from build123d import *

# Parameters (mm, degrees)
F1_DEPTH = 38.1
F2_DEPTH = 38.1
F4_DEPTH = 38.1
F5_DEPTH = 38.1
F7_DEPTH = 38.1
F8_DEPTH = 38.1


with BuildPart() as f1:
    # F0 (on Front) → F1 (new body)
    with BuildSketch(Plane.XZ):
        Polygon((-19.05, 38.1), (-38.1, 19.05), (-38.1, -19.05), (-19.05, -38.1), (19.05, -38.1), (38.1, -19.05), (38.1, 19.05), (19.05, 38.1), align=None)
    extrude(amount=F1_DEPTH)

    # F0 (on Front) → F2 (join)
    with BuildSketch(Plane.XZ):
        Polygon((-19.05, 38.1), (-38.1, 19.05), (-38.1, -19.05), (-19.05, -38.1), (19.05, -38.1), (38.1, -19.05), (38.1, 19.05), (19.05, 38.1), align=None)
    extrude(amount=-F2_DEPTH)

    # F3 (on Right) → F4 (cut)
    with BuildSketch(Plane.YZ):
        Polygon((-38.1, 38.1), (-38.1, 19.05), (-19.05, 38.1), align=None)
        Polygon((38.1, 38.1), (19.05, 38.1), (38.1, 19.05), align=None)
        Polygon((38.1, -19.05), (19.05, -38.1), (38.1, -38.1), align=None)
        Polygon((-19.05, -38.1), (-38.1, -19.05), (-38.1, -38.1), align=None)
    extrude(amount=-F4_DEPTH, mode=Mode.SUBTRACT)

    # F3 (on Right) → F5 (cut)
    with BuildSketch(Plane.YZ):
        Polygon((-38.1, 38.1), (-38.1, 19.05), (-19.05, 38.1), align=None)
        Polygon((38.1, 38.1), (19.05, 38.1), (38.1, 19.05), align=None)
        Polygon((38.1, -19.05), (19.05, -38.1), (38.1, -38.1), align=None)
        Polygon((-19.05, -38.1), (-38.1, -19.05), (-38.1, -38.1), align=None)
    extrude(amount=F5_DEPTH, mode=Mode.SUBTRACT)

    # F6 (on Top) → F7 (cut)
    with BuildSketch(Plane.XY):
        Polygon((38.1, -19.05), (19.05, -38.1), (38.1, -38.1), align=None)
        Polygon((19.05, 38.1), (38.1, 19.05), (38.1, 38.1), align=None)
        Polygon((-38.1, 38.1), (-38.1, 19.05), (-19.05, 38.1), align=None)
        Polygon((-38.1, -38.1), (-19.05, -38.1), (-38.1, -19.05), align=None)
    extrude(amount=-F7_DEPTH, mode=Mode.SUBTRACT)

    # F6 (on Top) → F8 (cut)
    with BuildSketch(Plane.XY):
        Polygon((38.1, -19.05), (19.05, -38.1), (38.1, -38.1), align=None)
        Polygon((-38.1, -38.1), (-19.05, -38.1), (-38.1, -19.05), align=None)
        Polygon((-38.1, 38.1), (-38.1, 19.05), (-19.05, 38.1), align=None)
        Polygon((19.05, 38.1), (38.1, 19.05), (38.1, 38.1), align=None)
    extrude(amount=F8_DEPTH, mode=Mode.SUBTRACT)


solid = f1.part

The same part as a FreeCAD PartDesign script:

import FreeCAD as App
import Part
import Sketcher
from FreeCAD import Vector
Q = App.Units.Quantity

doc = App.newDocument("Part")
body = doc.addObject("PartDesign::Body", "Body")

sketch1 = body.newObject("Sketcher::SketchObject", "Sketch")
sketch1.AttachmentSupport = (doc.getObject("XZ_Plane"), [""])
sketch1.MapMode = "FlatFace"
sketch1.addGeometry(Part.LineSegment(Vector(-19, 38, 0), Vector(-38, 19, 0)), False)
sketch1.addGeometry(Part.LineSegment(Vector(-38, 19, 0), Vector(-38, -19, 0)), False)
sketch1.addGeometry(Part.LineSegment(Vector(-38, -19, 0), Vector(-19, -38, 0)), False)
sketch1.addGeometry(Part.LineSegment(Vector(-19, -38, 0), Vector(19, -38, 0)), False)
sketch1.addGeometry(Part.LineSegment(Vector(19, -38, 0), Vector(38, -19, 0)), False)
sketch1.addGeometry(Part.LineSegment(Vector(38, -19, 0), Vector(38, 19, 0)), False)
sketch1.addGeometry(Part.LineSegment(Vector(38, 19, 0), Vector(19, 38, 0)), False)
sketch1.addGeometry(Part.LineSegment(Vector(19, 38, 0), Vector(-19, 38, 0)), False)
sketch1.addConstraint(Sketcher.Constraint("Coincident", 0, 2, 1, 1))
sketch1.addConstraint(Sketcher.Constraint("Coincident", 1, 2, 2, 1))
sketch1.addConstraint(Sketcher.Constraint("Coincident", 2, 2, 3, 1))
sketch1.addConstraint(Sketcher.Constraint("Coincident", 3, 2, 4, 1))
sketch1.addConstraint(Sketcher.Constraint("Coincident", 4, 2, 5, 1))
sketch1.addConstraint(Sketcher.Constraint("Coincident", 5, 2, 6, 1))
sketch1.addConstraint(Sketcher.Constraint("Coincident", 6, 2, 7, 1))
sketch1.addConstraint(Sketcher.Constraint("Coincident", 7, 2, 0, 1))
sketch1.addConstraint(Sketcher.Constraint("Vertical", 1))
sketch1.addConstraint(Sketcher.Constraint("Horizontal", 3))
sketch1.addConstraint(Sketcher.Constraint("Vertical", 5))
sketch1.addConstraint(Sketcher.Constraint("Horizontal", 7))
sketch1.addConstraint(Sketcher.Constraint("Symmetric", 0, 2, 4, 2, -1, 1))
sketch1.addConstraint(Sketcher.Constraint("Symmetric", 2, 2, 6, 2, -1, 1))
sketch1.addConstraint(Sketcher.Constraint("Perpendicular", 0, 2))
sketch1.addConstraint(Sketcher.Constraint("Perpendicular", 2, 4))
sketch1.addConstraint(Sketcher.Constraint("Perpendicular", 4, 6))
sketch1.addConstraint(Sketcher.Constraint("Horizontal", 1, 2, 4, 2))
sketch1.addConstraint(Sketcher.Constraint("Vertical", 3, 2, 6, 2))
sketch1.addConstraint(Sketcher.Constraint("Equal", 7, 1))
sketch1.addConstraint(Sketcher.Constraint("DistanceX", 3, 1, 3, 2, Q("1.5 in")))
sketch1.addConstraint(Sketcher.Constraint("DistanceX", 1, 2, 4, 2, Q("3 in")))
pad1 = body.newObject("PartDesign::Pad", "Pad")
pad1.Profile = sketch1
pad1.Length = Q("1.5 in")

sketch2 = body.newObject("Sketcher::SketchObject", "Sketch001")
sketch2.AttachmentSupport = (doc.getObject("XZ_Plane"), [""])
sketch2.MapMode = "FlatFace"
sketch2.addGeometry(Part.LineSegment(Vector(-19, 38, 0), Vector(-38, 19, 0)), False)
sketch2.addGeometry(Part.LineSegment(Vector(-38, 19, 0), Vector(-38, -19, 0)), False)
sketch2.addGeometry(Part.LineSegment(Vector(-38, -19, 0), Vector(-19, -38, 0)), False)
sketch2.addGeometry(Part.LineSegment(Vector(-19, -38, 0), Vector(19, -38, 0)), False)
sketch2.addGeometry(Part.LineSegment(Vector(19, -38, 0), Vector(38, -19, 0)), False)
sketch2.addGeometry(Part.LineSegment(Vector(38, -19, 0), Vector(38, 19, 0)), False)
sketch2.addGeometry(Part.LineSegment(Vector(38, 19, 0), Vector(19, 38, 0)), False)
sketch2.addGeometry(Part.LineSegment(Vector(19, 38, 0), Vector(-19, 38, 0)), False)
sketch2.addConstraint(Sketcher.Constraint("Coincident", 0, 2, 1, 1))
sketch2.addConstraint(Sketcher.Constraint("Coincident", 1, 2, 2, 1))
sketch2.addConstraint(Sketcher.Constraint("Coincident", 2, 2, 3, 1))
sketch2.addConstraint(Sketcher.Constraint("Coincident", 3, 2, 4, 1))
sketch2.addConstraint(Sketcher.Constraint("Coincident", 4, 2, 5, 1))
sketch2.addConstraint(Sketcher.Constraint("Coincident", 5, 2, 6, 1))
sketch2.addConstraint(Sketcher.Constraint("Coincident", 6, 2, 7, 1))
sketch2.addConstraint(Sketcher.Constraint("Coincident", 7, 2, 0, 1))
sketch2.addConstraint(Sketcher.Constraint("Vertical", 1))
sketch2.addConstraint(Sketcher.Constraint("Horizontal", 3))
sketch2.addConstraint(Sketcher.Constraint("Vertical", 5))
sketch2.addConstraint(Sketcher.Constraint("Horizontal", 7))
sketch2.addConstraint(Sketcher.Constraint("Symmetric", 0, 2, 4, 2, -1, 1))
sketch2.addConstraint(Sketcher.Constraint("Symmetric", 2, 2, 6, 2, -1, 1))
sketch2.addConstraint(Sketcher.Constraint("Perpendicular", 0, 2))
sketch2.addConstraint(Sketcher.Constraint("Perpendicular", 2, 4))
sketch2.addConstraint(Sketcher.Constraint("Perpendicular", 4, 6))
sketch2.addConstraint(Sketcher.Constraint("Horizontal", 1, 2, 4, 2))
sketch2.addConstraint(Sketcher.Constraint("Vertical", 3, 2, 6, 2))
sketch2.addConstraint(Sketcher.Constraint("Equal", 7, 1))
sketch2.addConstraint(Sketcher.Constraint("DistanceX", 3, 1, 3, 2, Q("1.5 in")))
sketch2.addConstraint(Sketcher.Constraint("DistanceX", 1, 2, 4, 2, Q("3 in")))
pad2 = body.newObject("PartDesign::Pad", "Pad001")
pad2.Profile = sketch2
pad2.Length = Q("1.5 in")
pad2.Reversed = True

sketch3 = body.newObject("Sketcher::SketchObject", "Sketch002")
sketch3.AttachmentSupport = (doc.getObject("YZ_Plane"), [""])
sketch3.MapMode = "FlatFace"
sketch3.addGeometry(Part.LineSegment(Vector(-38, 38, 0), Vector(-38, 19, 0)), False)
sketch3.addGeometry(Part.LineSegment(Vector(-38, 19, 0), Vector(-19, 38, 0)), False)
sketch3.addGeometry(Part.LineSegment(Vector(-19, 38, 0), Vector(-38, 38, 0)), False)
sketch3.addGeometry(Part.LineSegment(Vector(38, 38, 0), Vector(19, 38, 0)), False)
sketch3.addGeometry(Part.LineSegment(Vector(19, 38, 0), Vector(38, 19, 0)), False)
sketch3.addGeometry(Part.LineSegment(Vector(38, 19, 0), Vector(38, 38, 0)), False)
sketch3.addGeometry(Part.LineSegment(Vector(38, -19, 0), Vector(19, -38, 0)), False)
sketch3.addGeometry(Part.LineSegment(Vector(19, -38, 0), Vector(38, -38, 0)), False)
sketch3.addGeometry(Part.LineSegment(Vector(38, -38, 0), Vector(38, -19, 0)), False)
sketch3.addGeometry(Part.LineSegment(Vector(-19, -38, 0), Vector(-38, -19, 0)), False)
sketch3.addGeometry(Part.LineSegment(Vector(-38, -19, 0), Vector(-38, -38, 0)), False)
sketch3.addGeometry(Part.LineSegment(Vector(-38, -38, 0), Vector(-19, -38, 0)), False)
sketch3.addConstraint(Sketcher.Constraint("Coincident", 0, 2, 1, 1))
sketch3.addConstraint(Sketcher.Constraint("Coincident", 1, 2, 2, 1))
sketch3.addConstraint(Sketcher.Constraint("Coincident", 2, 2, 0, 1))
sketch3.addConstraint(Sketcher.Constraint("Coincident", 3, 2, 4, 1))
sketch3.addConstraint(Sketcher.Constraint("Coincident", 4, 2, 5, 1))
sketch3.addConstraint(Sketcher.Constraint("Coincident", 5, 2, 3, 1))
sketch3.addConstraint(Sketcher.Constraint("Coincident", 6, 2, 7, 1))
sketch3.addConstraint(Sketcher.Constraint("Coincident", 7, 2, 8, 1))
sketch3.addConstraint(Sketcher.Constraint("Coincident", 8, 2, 6, 1))
sketch3.addConstraint(Sketcher.Constraint("Coincident", 9, 2, 10, 1))
sketch3.addConstraint(Sketcher.Constraint("Coincident", 10, 2, 11, 1))
sketch3.addConstraint(Sketcher.Constraint("Coincident", 11, 2, 9, 1))
sketch3.addConstraint(Sketcher.Constraint("Vertical", 0))
sketch3.addConstraint(Sketcher.Constraint("Horizontal", 2))
sketch3.addConstraint(Sketcher.Constraint("Horizontal", 3))
sketch3.addConstraint(Sketcher.Constraint("Vertical", 5))
sketch3.addConstraint(Sketcher.Constraint("Horizontal", 7))
sketch3.addConstraint(Sketcher.Constraint("Vertical", 8))
sketch3.addConstraint(Sketcher.Constraint("Vertical", 10))
sketch3.addConstraint(Sketcher.Constraint("Horizontal", 11))
sketch3.addConstraint(Sketcher.Constraint("Symmetric", 1, 2, 6, 2, -1, 1))
sketch3.addConstraint(Sketcher.Constraint("Symmetric", 0, 2, 8, 2, -1, 1))
sketch3.addConstraint(Sketcher.Constraint("Symmetric", 4, 2, 9, 2, -1, 1))
sketch3.addConstraint(Sketcher.Constraint("Symmetric", 3, 2, 11, 2, -1, 1))
sketch3.addConstraint(Sketcher.Constraint("Symmetric", 1, 2, 3, 2, -2))
sketch3.addConstraint(Sketcher.Constraint("Symmetric", 0, 2, 4, 2, -2))
sketch3.addConstraint(Sketcher.Constraint("Perpendicular", 1, 4))
sketch3.addConstraint(Sketcher.Constraint("DistanceX", 0, 2, 4, 2, Q("3 in")))
sketch3.addConstraint(Sketcher.Constraint("DistanceY", 6, 2, 3, 2, Q("3 in")))
sketch3.addConstraint(Sketcher.Constraint("DistanceX", 2, 2, 2, 1, Q("0.75 in")))
pocket1 = body.newObject("PartDesign::Pocket", "Pocket")
pocket1.Profile = sketch3
pocket1.Length = Q("1.5 in")

sketch4 = body.newObject("Sketcher::SketchObject", "Sketch003")
sketch4.AttachmentSupport = (doc.getObject("YZ_Plane"), [""])
sketch4.MapMode = "FlatFace"
sketch4.addGeometry(Part.LineSegment(Vector(-38, 38, 0), Vector(-38, 19, 0)), False)
sketch4.addGeometry(Part.LineSegment(Vector(-38, 19, 0), Vector(-19, 38, 0)), False)
sketch4.addGeometry(Part.LineSegment(Vector(-19, 38, 0), Vector(-38, 38, 0)), False)
sketch4.addGeometry(Part.LineSegment(Vector(38, 38, 0), Vector(19, 38, 0)), False)
sketch4.addGeometry(Part.LineSegment(Vector(19, 38, 0), Vector(38, 19, 0)), False)
sketch4.addGeometry(Part.LineSegment(Vector(38, 19, 0), Vector(38, 38, 0)), False)
sketch4.addGeometry(Part.LineSegment(Vector(38, -19, 0), Vector(19, -38, 0)), False)
sketch4.addGeometry(Part.LineSegment(Vector(19, -38, 0), Vector(38, -38, 0)), False)
sketch4.addGeometry(Part.LineSegment(Vector(38, -38, 0), Vector(38, -19, 0)), False)
sketch4.addGeometry(Part.LineSegment(Vector(-19, -38, 0), Vector(-38, -19, 0)), False)
sketch4.addGeometry(Part.LineSegment(Vector(-38, -19, 0), Vector(-38, -38, 0)), False)
sketch4.addGeometry(Part.LineSegment(Vector(-38, -38, 0), Vector(-19, -38, 0)), False)
sketch4.addConstraint(Sketcher.Constraint("Coincident", 0, 2, 1, 1))
sketch4.addConstraint(Sketcher.Constraint("Coincident", 1, 2, 2, 1))
sketch4.addConstraint(Sketcher.Constraint("Coincident", 2, 2, 0, 1))
sketch4.addConstraint(Sketcher.Constraint("Coincident", 3, 2, 4, 1))
sketch4.addConstraint(Sketcher.Constraint("Coincident", 4, 2, 5, 1))
sketch4.addConstraint(Sketcher.Constraint("Coincident", 5, 2, 3, 1))
sketch4.addConstraint(Sketcher.Constraint("Coincident", 6, 2, 7, 1))
sketch4.addConstraint(Sketcher.Constraint("Coincident", 7, 2, 8, 1))
sketch4.addConstraint(Sketcher.Constraint("Coincident", 8, 2, 6, 1))
sketch4.addConstraint(Sketcher.Constraint("Coincident", 9, 2, 10, 1))
sketch4.addConstraint(Sketcher.Constraint("Coincident", 10, 2, 11, 1))
sketch4.addConstraint(Sketcher.Constraint("Coincident", 11, 2, 9, 1))
sketch4.addConstraint(Sketcher.Constraint("Vertical", 0))
sketch4.addConstraint(Sketcher.Constraint("Horizontal", 2))
sketch4.addConstraint(Sketcher.Constraint("Horizontal", 3))
sketch4.addConstraint(Sketcher.Constraint("Vertical", 5))
sketch4.addConstraint(Sketcher.Constraint("Horizontal", 7))
sketch4.addConstraint(Sketcher.Constraint("Vertical", 8))
sketch4.addConstraint(Sketcher.Constraint("Vertical", 10))
sketch4.addConstraint(Sketcher.Constraint("Horizontal", 11))
sketch4.addConstraint(Sketcher.Constraint("Symmetric", 1, 2, 6, 2, -1, 1))
sketch4.addConstraint(Sketcher.Constraint("Symmetric", 0, 2, 8, 2, -1, 1))
sketch4.addConstraint(Sketcher.Constraint("Symmetric", 4, 2, 9, 2, -1, 1))
sketch4.addConstraint(Sketcher.Constraint("Symmetric", 3, 2, 11, 2, -1, 1))
sketch4.addConstraint(Sketcher.Constraint("Symmetric", 1, 2, 3, 2, -2))
sketch4.addConstraint(Sketcher.Constraint("Symmetric", 0, 2, 4, 2, -2))
sketch4.addConstraint(Sketcher.Constraint("Perpendicular", 1, 4))
sketch4.addConstraint(Sketcher.Constraint("DistanceX", 0, 2, 4, 2, Q("3 in")))
sketch4.addConstraint(Sketcher.Constraint("DistanceY", 6, 2, 3, 2, Q("3 in")))
sketch4.addConstraint(Sketcher.Constraint("DistanceX", 2, 2, 2, 1, Q("0.75 in")))
pocket2 = body.newObject("PartDesign::Pocket", "Pocket001")
pocket2.Profile = sketch4
pocket2.Length = Q("1.5 in")
pocket2.Reversed = True

sketch5 = body.newObject("Sketcher::SketchObject", "Sketch004")
sketch5.AttachmentSupport = (doc.getObject("XY_Plane"), [""])
sketch5.MapMode = "FlatFace"
sketch5.addGeometry(Part.LineSegment(Vector(38, -19, 0), Vector(19, -38, 0)), False)
sketch5.addGeometry(Part.LineSegment(Vector(19, -38, 0), Vector(38, -38, 0)), False)
sketch5.addGeometry(Part.LineSegment(Vector(38, -38, 0), Vector(38, -19, 0)), False)
sketch5.addGeometry(Part.LineSegment(Vector(19, 38, 0), Vector(38, 19, 0)), False)
sketch5.addGeometry(Part.LineSegment(Vector(38, 19, 0), Vector(38, 38, 0)), False)
sketch5.addGeometry(Part.LineSegment(Vector(38, 38, 0), Vector(19, 38, 0)), False)
sketch5.addGeometry(Part.LineSegment(Vector(-38, 38, 0), Vector(-38, 19, 0)), False)
sketch5.addGeometry(Part.LineSegment(Vector(-38, 19, 0), Vector(-19, 38, 0)), False)
sketch5.addGeometry(Part.LineSegment(Vector(-19, 38, 0), Vector(-38, 38, 0)), False)
sketch5.addGeometry(Part.LineSegment(Vector(-38, -38, 0), Vector(-19, -38, 0)), False)
sketch5.addGeometry(Part.LineSegment(Vector(-19, -38, 0), Vector(-38, -19, 0)), False)
sketch5.addGeometry(Part.LineSegment(Vector(-38, -19, 0), Vector(-38, -38, 0)), False)
sketch5.addConstraint(Sketcher.Constraint("Coincident", 0, 2, 1, 1))
sketch5.addConstraint(Sketcher.Constraint("Coincident", 1, 2, 2, 1))
sketch5.addConstraint(Sketcher.Constraint("Coincident", 2, 2, 0, 1))
sketch5.addConstraint(Sketcher.Constraint("Coincident", 3, 2, 4, 1))
sketch5.addConstraint(Sketcher.Constraint("Coincident", 4, 2, 5, 1))
sketch5.addConstraint(Sketcher.Constraint("Coincident", 5, 2, 3, 1))
sketch5.addConstraint(Sketcher.Constraint("Coincident", 6, 2, 7, 1))
sketch5.addConstraint(Sketcher.Constraint("Coincident", 7, 2, 8, 1))
sketch5.addConstraint(Sketcher.Constraint("Coincident", 8, 2, 6, 1))
sketch5.addConstraint(Sketcher.Constraint("Coincident", 9, 2, 10, 1))
sketch5.addConstraint(Sketcher.Constraint("Coincident", 10, 2, 11, 1))
sketch5.addConstraint(Sketcher.Constraint("Coincident", 11, 2, 9, 1))
sketch5.addConstraint(Sketcher.Constraint("Horizontal", 1))
sketch5.addConstraint(Sketcher.Constraint("Vertical", 2))
sketch5.addConstraint(Sketcher.Constraint("Vertical", 4))
sketch5.addConstraint(Sketcher.Constraint("Horizontal", 5))
sketch5.addConstraint(Sketcher.Constraint("Vertical", 6))
sketch5.addConstraint(Sketcher.Constraint("Horizontal", 8))
sketch5.addConstraint(Sketcher.Constraint("Horizontal", 9))
sketch5.addConstraint(Sketcher.Constraint("Vertical", 11))
sketch5.addConstraint(Sketcher.Constraint("Symmetric", 2, 2, 6, 2, -1, 1))
sketch5.addConstraint(Sketcher.Constraint("Symmetric", 0, 2, 7, 2, -1, 1))
sketch5.addConstraint(Sketcher.Constraint("Symmetric", 5, 2, 9, 2, -1, 1))
sketch5.addConstraint(Sketcher.Constraint("Symmetric", 3, 2, 10, 2, -1, 1))
sketch5.addConstraint(Sketcher.Constraint("Symmetric", 3, 2, 6, 2, -2))
sketch5.addConstraint(Sketcher.Constraint("Symmetric", 5, 2, 7, 2, -2))
sketch5.addConstraint(Sketcher.Constraint("Perpendicular", 0, 3))
sketch5.addConstraint(Sketcher.Constraint("DistanceY", 1, 2, 4, 2, Q("3 in")))
sketch5.addConstraint(Sketcher.Constraint("DistanceX", 6, 2, 3, 2, Q("3 in")))
sketch5.addConstraint(Sketcher.Constraint("DistanceX", 1, 1, 1, 2, Q("0.75 in")))
pocket3 = body.newObject("PartDesign::Pocket", "Pocket002")
pocket3.Profile = sketch5
pocket3.Length = Q("1.5 in")

sketch6 = body.newObject("Sketcher::SketchObject", "Sketch005")
sketch6.AttachmentSupport = (doc.getObject("XY_Plane"), [""])
sketch6.MapMode = "FlatFace"
sketch6.addGeometry(Part.LineSegment(Vector(38, -19, 0), Vector(19, -38, 0)), False)
sketch6.addGeometry(Part.LineSegment(Vector(19, -38, 0), Vector(38, -38, 0)), False)
sketch6.addGeometry(Part.LineSegment(Vector(38, -38, 0), Vector(38, -19, 0)), False)
sketch6.addGeometry(Part.LineSegment(Vector(-38, -38, 0), Vector(-19, -38, 0)), False)
sketch6.addGeometry(Part.LineSegment(Vector(-19, -38, 0), Vector(-38, -19, 0)), False)
sketch6.addGeometry(Part.LineSegment(Vector(-38, -19, 0), Vector(-38, -38, 0)), False)
sketch6.addGeometry(Part.LineSegment(Vector(-38, 38, 0), Vector(-38, 19, 0)), False)
sketch6.addGeometry(Part.LineSegment(Vector(-38, 19, 0), Vector(-19, 38, 0)), False)
sketch6.addGeometry(Part.LineSegment(Vector(-19, 38, 0), Vector(-38, 38, 0)), False)
sketch6.addGeometry(Part.LineSegment(Vector(19, 38, 0), Vector(38, 19, 0)), False)
sketch6.addGeometry(Part.LineSegment(Vector(38, 19, 0), Vector(38, 38, 0)), False)
sketch6.addGeometry(Part.LineSegment(Vector(38, 38, 0), Vector(19, 38, 0)), False)
sketch6.addConstraint(Sketcher.Constraint("Coincident", 0, 2, 1, 1))
sketch6.addConstraint(Sketcher.Constraint("Coincident", 1, 2, 2, 1))
sketch6.addConstraint(Sketcher.Constraint("Coincident", 2, 2, 0, 1))
sketch6.addConstraint(Sketcher.Constraint("Coincident", 3, 2, 4, 1))
sketch6.addConstraint(Sketcher.Constraint("Coincident", 4, 2, 5, 1))
sketch6.addConstraint(Sketcher.Constraint("Coincident", 5, 2, 3, 1))
sketch6.addConstraint(Sketcher.Constraint("Coincident", 6, 2, 7, 1))
sketch6.addConstraint(Sketcher.Constraint("Coincident", 7, 2, 8, 1))
sketch6.addConstraint(Sketcher.Constraint("Coincident", 8, 2, 6, 1))
sketch6.addConstraint(Sketcher.Constraint("Coincident", 9, 2, 10, 1))
sketch6.addConstraint(Sketcher.Constraint("Coincident", 10, 2, 11, 1))
sketch6.addConstraint(Sketcher.Constraint("Coincident", 11, 2, 9, 1))
sketch6.addConstraint(Sketcher.Constraint("Horizontal", 1))
sketch6.addConstraint(Sketcher.Constraint("Vertical", 2))
sketch6.addConstraint(Sketcher.Constraint("Horizontal", 3))
sketch6.addConstraint(Sketcher.Constraint("Vertical", 5))
sketch6.addConstraint(Sketcher.Constraint("Vertical", 6))
sketch6.addConstraint(Sketcher.Constraint("Horizontal", 8))
sketch6.addConstraint(Sketcher.Constraint("Vertical", 10))
sketch6.addConstraint(Sketcher.Constraint("Horizontal", 11))
sketch6.addConstraint(Sketcher.Constraint("Symmetric", 2, 2, 6, 2, -1, 1))
sketch6.addConstraint(Sketcher.Constraint("Symmetric", 0, 2, 7, 2, -1, 1))
sketch6.addConstraint(Sketcher.Constraint("Symmetric", 4, 2, 9, 2, -1, 1))
sketch6.addConstraint(Sketcher.Constraint("Symmetric", 3, 2, 11, 2, -1, 1))
sketch6.addConstraint(Sketcher.Constraint("Symmetric", 0, 2, 3, 2, -2))
sketch6.addConstraint(Sketcher.Constraint("Symmetric", 2, 2, 4, 2, -2))
sketch6.addConstraint(Sketcher.Constraint("Perpendicular", 0, 4))
sketch6.addConstraint(Sketcher.Constraint("DistanceX", 4, 2, 2, 2, Q("3 in")))
sketch6.addConstraint(Sketcher.Constraint("DistanceY", 3, 2, 7, 2, Q("3 in")))
sketch6.addConstraint(Sketcher.Constraint("DistanceX", 1, 1, 1, 2, Q("0.75 in")))
pocket4 = body.newObject("PartDesign::Pocket", "Pocket003")
pocket4.Profile = sketch6
pocket4.Length = Q("1.5 in")
pocket4.Reversed = True

doc.recompute()
